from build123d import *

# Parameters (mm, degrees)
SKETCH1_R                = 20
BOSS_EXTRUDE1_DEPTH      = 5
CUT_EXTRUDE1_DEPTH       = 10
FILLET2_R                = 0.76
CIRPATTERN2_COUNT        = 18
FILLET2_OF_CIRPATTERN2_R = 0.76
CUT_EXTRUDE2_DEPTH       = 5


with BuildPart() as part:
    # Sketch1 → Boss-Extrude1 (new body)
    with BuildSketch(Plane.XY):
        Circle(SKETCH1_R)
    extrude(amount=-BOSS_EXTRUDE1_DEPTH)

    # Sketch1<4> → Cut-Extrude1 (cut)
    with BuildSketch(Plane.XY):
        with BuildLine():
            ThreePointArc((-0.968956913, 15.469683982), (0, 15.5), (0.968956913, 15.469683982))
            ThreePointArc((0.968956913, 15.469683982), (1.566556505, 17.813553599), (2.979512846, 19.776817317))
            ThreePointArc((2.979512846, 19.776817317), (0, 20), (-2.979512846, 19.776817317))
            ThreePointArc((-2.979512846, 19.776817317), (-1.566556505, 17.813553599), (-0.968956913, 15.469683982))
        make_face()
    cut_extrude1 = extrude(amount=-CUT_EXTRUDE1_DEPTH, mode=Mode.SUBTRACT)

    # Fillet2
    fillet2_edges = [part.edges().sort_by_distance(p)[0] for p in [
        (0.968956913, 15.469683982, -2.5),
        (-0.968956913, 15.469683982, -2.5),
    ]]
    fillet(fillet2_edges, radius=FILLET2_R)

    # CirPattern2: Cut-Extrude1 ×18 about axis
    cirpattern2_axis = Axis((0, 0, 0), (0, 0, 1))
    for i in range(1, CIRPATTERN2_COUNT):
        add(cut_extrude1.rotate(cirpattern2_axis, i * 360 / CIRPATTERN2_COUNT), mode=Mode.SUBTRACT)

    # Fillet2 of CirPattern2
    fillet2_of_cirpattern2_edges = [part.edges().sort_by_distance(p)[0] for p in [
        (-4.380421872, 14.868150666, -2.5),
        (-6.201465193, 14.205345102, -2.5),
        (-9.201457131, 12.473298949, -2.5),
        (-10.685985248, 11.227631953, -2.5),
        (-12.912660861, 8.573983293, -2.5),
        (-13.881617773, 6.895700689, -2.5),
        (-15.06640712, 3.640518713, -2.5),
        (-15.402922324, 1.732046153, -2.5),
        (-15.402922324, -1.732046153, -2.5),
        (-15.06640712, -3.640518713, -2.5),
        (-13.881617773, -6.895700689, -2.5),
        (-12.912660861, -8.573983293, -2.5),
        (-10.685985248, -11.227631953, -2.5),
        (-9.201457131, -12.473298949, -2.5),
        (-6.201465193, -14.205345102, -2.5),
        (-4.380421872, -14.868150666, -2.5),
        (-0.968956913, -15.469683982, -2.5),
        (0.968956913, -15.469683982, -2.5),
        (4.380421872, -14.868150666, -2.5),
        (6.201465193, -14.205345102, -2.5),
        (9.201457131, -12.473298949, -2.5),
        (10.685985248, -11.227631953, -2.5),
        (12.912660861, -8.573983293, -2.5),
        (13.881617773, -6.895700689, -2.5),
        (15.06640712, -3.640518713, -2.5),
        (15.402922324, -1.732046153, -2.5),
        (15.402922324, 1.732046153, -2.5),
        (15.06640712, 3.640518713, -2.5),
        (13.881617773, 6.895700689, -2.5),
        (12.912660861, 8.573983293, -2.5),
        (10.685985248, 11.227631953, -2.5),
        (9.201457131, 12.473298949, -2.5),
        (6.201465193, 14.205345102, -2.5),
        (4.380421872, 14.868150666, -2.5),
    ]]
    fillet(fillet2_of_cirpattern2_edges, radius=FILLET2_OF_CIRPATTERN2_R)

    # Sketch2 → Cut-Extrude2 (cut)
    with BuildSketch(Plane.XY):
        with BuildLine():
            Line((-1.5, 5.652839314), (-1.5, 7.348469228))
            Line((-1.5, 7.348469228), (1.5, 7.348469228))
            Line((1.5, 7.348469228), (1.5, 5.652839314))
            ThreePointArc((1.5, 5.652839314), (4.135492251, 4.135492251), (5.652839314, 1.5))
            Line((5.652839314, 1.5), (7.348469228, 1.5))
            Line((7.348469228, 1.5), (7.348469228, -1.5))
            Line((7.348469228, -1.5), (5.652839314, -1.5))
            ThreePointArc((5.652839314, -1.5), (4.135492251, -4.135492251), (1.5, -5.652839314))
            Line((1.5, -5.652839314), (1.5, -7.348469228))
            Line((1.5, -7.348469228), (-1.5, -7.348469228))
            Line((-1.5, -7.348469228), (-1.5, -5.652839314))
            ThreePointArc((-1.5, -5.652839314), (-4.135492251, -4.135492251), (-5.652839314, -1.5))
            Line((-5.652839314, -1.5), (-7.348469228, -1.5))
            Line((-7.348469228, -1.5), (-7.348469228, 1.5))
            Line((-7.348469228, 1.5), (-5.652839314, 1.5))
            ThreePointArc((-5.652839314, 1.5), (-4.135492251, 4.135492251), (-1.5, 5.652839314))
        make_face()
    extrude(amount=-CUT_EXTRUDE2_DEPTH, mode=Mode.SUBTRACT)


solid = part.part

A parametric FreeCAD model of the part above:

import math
import FreeCAD as App
import Part
import Sketcher
Q = App.Units.Quantity


def edges_at(feature, points):
    """Names of the edges that pass closest to the given points."""
    edges = feature.Shape.Edges
    near = lambda p: min(range(len(edges)), key=lambda i: edges[i].distToShape(Part.Vertex(*p))[0])
    return sorted({f"Edge{near(p) + 1}" for p in points})

doc = App.newDocument("Part")
params = doc.addObject("Spreadsheet::Sheet", "Params")
for row, (alias, value) in enumerate([
    ("sketch1_diameter", "40 mm"),
    ("pad1_length", "5 mm"),
    ("sketch2_radius", "20 mm"),
    ("sketch2_radius2", "15.5 mm"),
    ("pocket1_length", "10 mm"),
    ("fillet_radius", "0.76 mm"),
    ("fillet2_radius", "0.76 mm"),
    ("sketch3_width", "3 mm"),
    ("pocket2_length", "5 mm"),
], start=1):
    params.set(f"A{row}", alias)
    params.set(f"B{row}", "=" + value)
    params.setAlias(f"B{row}", alias)

body = doc.addObject("PartDesign::Body", "Body")

sketch1 = doc.addObject("Sketcher::SketchObject", "Sketch")
body.addObject(sketch1)
sketch1.AttachmentSupport = (doc.XY_Plane, [""])
sketch1.MapMode = "FlatFace"
sketch1.addGeometry(Part.Circle(App.Vector(0, 0, 0), App.Vector(0, 0, 1), 20), False)
sketch1.addConstraint(Sketcher.Constraint("Coincident", 0, 3, -1, 1))
sketch1.addConstraint(Sketcher.Constraint("Diameter", 0, Q("40 mm")))
sketch1.setExpression("Constraints[1]", "Params.sketch1_diameter")
pad1 = doc.addObject("PartDesign::Pad", "Pad")
body.addObject(pad1)
pad1.Profile = sketch1
pad1.setExpression("Length", "Params.pad1_length")
pad1.Reversed = True

sketch2 = doc.addObject("Sketcher::SketchObject", "Sketch001")
body.addObject(sketch2)
sketch2.AttachmentSupport = (doc.XY_Plane, [""])
sketch2.MapMode = "FlatFace"
sketch2.addGeometry(Part.ArcOfCircle(Part.Circle(App.Vector(0, 0, 0), App.Vector(0, 0, 1), 15.5), math.radians(86.42), math.radians(93.58)), False)
sketch2.addGeometry(Part.ArcOfCircle(Part.Circle(App.Vector(7.5, 15.1, 0), App.Vector(0, 0, 1), 6.5), math.radians(134), math.radians(176)), False)
sketch2.addGeometry(Part.ArcOfCircle(Part.Circle(App.Vector(0, 0, 0), App.Vector(0, 0, 1), 20), math.radians(81.43), math.radians(98.57)), False)
sketch2.addGeometry(Part.ArcOfCircle(Part.Circle(App.Vector(-7.5, 15.1, 0), App.Vector(0, 0, 1), 6.5), math.radians(4), math.radians(46)), False)
sketch2.addConstraint(Sketcher.Constraint("Coincident", 0, 1, 1, 2))
sketch2.addConstraint(Sketcher.Constraint("Coincident", 1, 1, 2, 1))
sketch2.addConstraint(Sketcher.Constraint("Coincident", 2, 2, 3, 2))
sketch2.addConstraint(Sketcher.Constraint("Coincident", 3, 1, 0, 2))
sketch2.addConstraint(Sketcher.Constraint("Coincident", 0, 3, -1, 1))
sketch2.addConstraint(Sketcher.Constraint("Coincident", 2, 3, -1, 1))
sketch2.addConstraint(Sketcher.Constraint("Equal", 1, 3))
sketch2.addConstraint(Sketcher.Constraint("Symmetric", 1, 3, 3, 3, -2))
sketch2.addConstraint(Sketcher.Constraint("Radius", 2, Q("20 mm")))
sketch2.addConstraint(Sketcher.Constraint("Radius", 0, Q("15.5 mm")))
sketch2.addConstraint(Sketcher.Constraint("Radius", 1, Q("6.502279 mm")))
sketch2.addConstraint(Sketcher.Constraint("DistanceX", -1, 1, 1, 3, Q("7.458519 mm")))
sketch2.addConstraint(Sketcher.Constraint("DistanceX", 0, 1, 1, 3, Q("6.489562 mm")))
sketch2.setExpression("Constraints[8]", "Params.sketch2_radius")
sketch2.setExpression("Constraints[9]", "Params.sketch2_radius2")
pocket1 = doc.addObject("PartDesign::Pocket", "Pocket")
body.addObject(pocket1)
pocket1.Profile = sketch2
pocket1.setExpression("Length", "Params.pocket1_length")
doc.recompute()

fillet = doc.addObject("PartDesign::Fillet", "Fillet")
body.addObject(fillet)
fillet.Base = (pocket1, edges_at(pocket1, [(0.969, 15.47, -2.5), (-0.969, 15.47, -2.5)]))
fillet.setExpression("Radius", "Params.fillet_radius")
doc.recompute()

polarpattern = doc.addObject("PartDesign::PolarPattern", "PolarPattern")
body.addObject(polarpattern)
polarpattern.Originals = [pocket1]
polarpattern.Axis = (doc.Z_Axis, [""])
polarpattern.Angle = 360
polarpattern.Occurrences = 18
body.Tip = polarpattern
doc.recompute()

fillet2 = doc.addObject("PartDesign::Fillet", "Fillet001")
body.addObject(fillet2)
fillet2.Base = (polarpattern, edges_at(polarpattern, [
    (-4.38, 14.868, -2.5),
    (-6.201, 14.205, -2.5),
    (-9.201, 12.473, -2.5),
    (-10.686, 11.228, -2.5),
    (-12.913, 8.574, -2.5),
    (-13.882, 6.896, -2.5),
    (-15.066, 3.641, -2.5),
    (-15.403, 1.732, -2.5),
    (-15.403, -1.732, -2.5),
    (-15.066, -3.641, -2.5),
    (-13.882, -6.896, -2.5),
    (-12.913, -8.574, -2.5),
    (-10.686, -11.228, -2.5),
    (-9.201, -12.473, -2.5),
    (-6.201, -14.205, -2.5),
    (-4.38, -14.868, -2.5),
    (-0.969, -15.47, -2.5),
    (0.969, -15.47, -2.5),
    (4.38, -14.868, -2.5),
    (6.201, -14.205, -2.5),
    (9.201, -12.473, -2.5),
    (10.686, -11.228, -2.5),
    (12.913, -8.574, -2.5),
    (13.882, -6.896, -2.5),
    (15.066, -3.641, -2.5),
    (15.403, -1.732, -2.5),
    (15.403, 1.732, -2.5),
    (15.066, 3.641, -2.5),
    (13.882, 6.896, -2.5),
    (12.913, 8.574, -2.5),
    (10.686, 11.228, -2.5),
    (9.201, 12.473, -2.5),
    (6.201, 14.205, -2.5),
    (4.38, 14.868, -2.5),
]))
fillet2.setExpression("Radius", "Params.fillet2_radius")

sketch3 = doc.addObject("Sketcher::SketchObject", "Sketch002")
body.addObject(sketch3)
sketch3.AttachmentSupport = (doc.XY_Plane, [""])
sketch3.MapMode = "FlatFace"
sketch3.addGeometry(Part.LineSegment(App.Vector(-1.5, 7.3, 0), App.Vector(-1.5, 5.7, 0)), False)
sketch3.addGeometry(Part.ArcOfCircle(Part.Circle(App.Vector(0, 0, 0), App.Vector(0, 0, 1), 5.8), math.radians(105), math.radians(165)), False)
sketch3.addGeometry(Part.LineSegment(App.Vector(-5.7, 1.5, 0), App.Vector(-7.3, 1.5, 0)), False)
sketch3.addGeometry(Part.LineSegment(App.Vector(-7.3, 1.5, 0), App.Vector(-7.3, -1.5, 0)), False)
sketch3.addGeometry(Part.LineSegment(App.Vector(-7.3, -1.5, 0), App.Vector(-5.7, -1.5, 0)), False)
sketch3.addGeometry(Part.ArcOfCircle(Part.Circle(App.Vector(0, 0, 0), App.Vector(0, 0, 1), 5.8), math.radians(-165), math.radians(-105)), False)
sketch3.addGeometry(Part.LineSegment(App.Vector(-1.5, -5.7, 0), App.Vector(-1.5, -7.3, 0)), False)
sketch3.addGeometry(Part.LineSegment(App.Vector(-1.5, -7.3, 0), App.Vector(1.5, -7.3, 0)), False)
sketch3.addGeometry(Part.LineSegment(App.Vector(1.5, -7.3, 0), App.Vector(1.5, -5.7, 0)), False)
sketch3.addGeometry(Part.ArcOfCircle(Part.Circle(App.Vector(0, 0, 0), App.Vector(0, 0, 1), 5.8), math.radians(-75), math.radians(-15)), False)
sketch3.addGeometry(Part.LineSegment(App.Vector(5.7, -1.5, 0), App.Vector(7.3, -1.5, 0)), False)
sketch3.addGeometry(Part.LineSegment(App.Vector(7.3, -1.5, 0), App.Vector(7.3, 1.5, 0)), False)
sketch3.addGeometry(Part.LineSegment(App.Vector(7.3, 1.5, 0), App.Vector(5.7, 1.5, 0)), False)
sketch3.addGeometry(Part.ArcOfCircle(Part.Circle(App.Vector(0, 0, 0), App.Vector(0, 0, 1), 5.8), math.radians(15), math.radians(75)), False)
sketch3.addGeometry(Part.LineSegment(App.Vector(1.5, 5.7, 0), App.Vector(1.5, 7.3, 0)), False)
sketch3.addGeometry(Part.LineSegment(App.Vector(1.5, 7.3, 0), App.Vector(-1.5, 7.3, 0)), False)
sketch3.addConstraint(Sketcher.Constraint("Coincident", 0, 2, 1, 1))
sketch3.addConstraint(Sketcher.Constraint("Coincident", 1, 2, 2, 1))
sketch3.addConstraint(Sketcher.Constraint("Coincident", 2, 2, 3, 1))
sketch3.addConstraint(Sketcher.Constraint("Coincident", 3, 2, 4, 1))
sketch3.addConstraint(Sketcher.Constraint("Coincident", 4, 2, 5, 1))
sketch3.addConstraint(Sketcher.Constraint("Coincident", 5, 2, 6, 1))
sketch3.addConstraint(Sketcher.Constraint("Coincident", 6, 2, 7, 1))
sketch3.addConstraint(Sketcher.Constraint("Coincident", 7, 2, 8, 1))
sketch3.addConstraint(Sketcher.Constraint("Coincident", 8, 2, 9, 1))
sketch3.addConstraint(Sketcher.Constraint("Coincident", 9, 2, 10, 1))
sketch3.addConstraint(Sketcher.Constraint("Coincident", 10, 2, 11, 1))
sketch3.addConstraint(Sketcher.Constraint("Coincident", 11, 2, 12, 1))
sketch3.addConstraint(Sketcher.Constraint("Coincident", 12, 2, 13, 1))
sketch3.addConstraint(Sketcher.Constraint("Coincident", 13, 2, 14, 1))
sketch3.addConstraint(Sketcher.Constraint("Coincident", 14, 2, 15, 1))
sketch3.addConstraint(Sketcher.Constraint("Coincident", 15, 2, 0, 1))
sketch3.addConstraint(Sketcher.Constraint("Vertical", 0))
sketch3.addConstraint(Sketcher.Constraint("Horizontal", 2))
sketch3.addConstraint(Sketcher.Constraint("Vertical", 3))
sketch3.addConstraint(Sketcher.Constraint("Horizontal", 4))
sketch3.addConstraint(Sketcher.Constraint("Vertical", 6))
sketch3.addConstraint(Sketcher.Constraint("Horizontal", 7))
sketch3.addConstraint(Sketcher.Constraint("Vertical", 8))
sketch3.addConstraint(Sketcher.Constraint("Horizontal", 10))
sketch3.addConstraint(Sketcher.Constraint("Vertical", 11))
sketch3.addConstraint(Sketcher.Constraint("Horizontal", 12))
sketch3.addConstraint(Sketcher.Constraint("Vertical", 14))
sketch3.addConstraint(Sketcher.Constraint("Horizontal", 15))
sketch3.addConstraint(Sketcher.Constraint("Coincident", 1, 3, -1, 1))
sketch3.addConstraint(Sketcher.Constraint("Coincident", 5, 3, -1, 1))
sketch3.addConstraint(Sketcher.Constraint("Coincident", 9, 3, -1, 1))
sketch3.addConstraint(Sketcher.Constraint("Coincident", 13, 3, -1, 1))
sketch3.addConstraint(Sketcher.Constraint("Equal", 1, 5))
sketch3.addConstraint(Sketcher.Constraint("Equal", 5, 9))
sketch3.addConstraint(Sketcher.Constraint("Equal", 9, 13))
sketch3.addConstraint(Sketcher.Constraint("Symmetric", 2, 2, 10, 2, -1, 1))
sketch3.addConstraint(Sketcher.Constraint("Symmetric", 6, 2, 14, 2, -1, 1))
sketch3.addConstraint(Sketcher.Constraint("Horizontal", 5, 2, 8, 2))
sketch3.addConstraint(Sketcher.Constraint("Horizontal", 4, 2, 9, 2))
sketch3.addConstraint(Sketcher.Constraint("Horizontal", 2, 2, 11, 2))
sketch3.addConstraint(Sketcher.Constraint("Horizontal", 0, 2, 13, 2))
sketch3.addConstraint(Sketcher.Constraint("Equal", 12, 0))
sketch3.addConstraint(Sketcher.Constraint("Equal", 15, 3))
sketch3.addConstraint(Sketcher.Constraint("DistanceX", 7, 1, 7, 2, Q("3 mm")))
sketch3.addConstraint(Sketcher.Constraint("Radius", 1, Q("5.848469 mm")))
sketch3.addConstraint(Sketcher.Constraint("DistanceX", 2, 2, 2, 1, Q("1.69563 mm")))
sketch3.setExpression("Constraints[43]", "Params.sketch3_width")
pocket2 = doc.addObject("PartDesign::Pocket", "Pocket001")
body.addObject(pocket2)
pocket2.Profile = sketch3
pocket2.setExpression("Length", "Params.pocket2_length")

doc.recompute()
